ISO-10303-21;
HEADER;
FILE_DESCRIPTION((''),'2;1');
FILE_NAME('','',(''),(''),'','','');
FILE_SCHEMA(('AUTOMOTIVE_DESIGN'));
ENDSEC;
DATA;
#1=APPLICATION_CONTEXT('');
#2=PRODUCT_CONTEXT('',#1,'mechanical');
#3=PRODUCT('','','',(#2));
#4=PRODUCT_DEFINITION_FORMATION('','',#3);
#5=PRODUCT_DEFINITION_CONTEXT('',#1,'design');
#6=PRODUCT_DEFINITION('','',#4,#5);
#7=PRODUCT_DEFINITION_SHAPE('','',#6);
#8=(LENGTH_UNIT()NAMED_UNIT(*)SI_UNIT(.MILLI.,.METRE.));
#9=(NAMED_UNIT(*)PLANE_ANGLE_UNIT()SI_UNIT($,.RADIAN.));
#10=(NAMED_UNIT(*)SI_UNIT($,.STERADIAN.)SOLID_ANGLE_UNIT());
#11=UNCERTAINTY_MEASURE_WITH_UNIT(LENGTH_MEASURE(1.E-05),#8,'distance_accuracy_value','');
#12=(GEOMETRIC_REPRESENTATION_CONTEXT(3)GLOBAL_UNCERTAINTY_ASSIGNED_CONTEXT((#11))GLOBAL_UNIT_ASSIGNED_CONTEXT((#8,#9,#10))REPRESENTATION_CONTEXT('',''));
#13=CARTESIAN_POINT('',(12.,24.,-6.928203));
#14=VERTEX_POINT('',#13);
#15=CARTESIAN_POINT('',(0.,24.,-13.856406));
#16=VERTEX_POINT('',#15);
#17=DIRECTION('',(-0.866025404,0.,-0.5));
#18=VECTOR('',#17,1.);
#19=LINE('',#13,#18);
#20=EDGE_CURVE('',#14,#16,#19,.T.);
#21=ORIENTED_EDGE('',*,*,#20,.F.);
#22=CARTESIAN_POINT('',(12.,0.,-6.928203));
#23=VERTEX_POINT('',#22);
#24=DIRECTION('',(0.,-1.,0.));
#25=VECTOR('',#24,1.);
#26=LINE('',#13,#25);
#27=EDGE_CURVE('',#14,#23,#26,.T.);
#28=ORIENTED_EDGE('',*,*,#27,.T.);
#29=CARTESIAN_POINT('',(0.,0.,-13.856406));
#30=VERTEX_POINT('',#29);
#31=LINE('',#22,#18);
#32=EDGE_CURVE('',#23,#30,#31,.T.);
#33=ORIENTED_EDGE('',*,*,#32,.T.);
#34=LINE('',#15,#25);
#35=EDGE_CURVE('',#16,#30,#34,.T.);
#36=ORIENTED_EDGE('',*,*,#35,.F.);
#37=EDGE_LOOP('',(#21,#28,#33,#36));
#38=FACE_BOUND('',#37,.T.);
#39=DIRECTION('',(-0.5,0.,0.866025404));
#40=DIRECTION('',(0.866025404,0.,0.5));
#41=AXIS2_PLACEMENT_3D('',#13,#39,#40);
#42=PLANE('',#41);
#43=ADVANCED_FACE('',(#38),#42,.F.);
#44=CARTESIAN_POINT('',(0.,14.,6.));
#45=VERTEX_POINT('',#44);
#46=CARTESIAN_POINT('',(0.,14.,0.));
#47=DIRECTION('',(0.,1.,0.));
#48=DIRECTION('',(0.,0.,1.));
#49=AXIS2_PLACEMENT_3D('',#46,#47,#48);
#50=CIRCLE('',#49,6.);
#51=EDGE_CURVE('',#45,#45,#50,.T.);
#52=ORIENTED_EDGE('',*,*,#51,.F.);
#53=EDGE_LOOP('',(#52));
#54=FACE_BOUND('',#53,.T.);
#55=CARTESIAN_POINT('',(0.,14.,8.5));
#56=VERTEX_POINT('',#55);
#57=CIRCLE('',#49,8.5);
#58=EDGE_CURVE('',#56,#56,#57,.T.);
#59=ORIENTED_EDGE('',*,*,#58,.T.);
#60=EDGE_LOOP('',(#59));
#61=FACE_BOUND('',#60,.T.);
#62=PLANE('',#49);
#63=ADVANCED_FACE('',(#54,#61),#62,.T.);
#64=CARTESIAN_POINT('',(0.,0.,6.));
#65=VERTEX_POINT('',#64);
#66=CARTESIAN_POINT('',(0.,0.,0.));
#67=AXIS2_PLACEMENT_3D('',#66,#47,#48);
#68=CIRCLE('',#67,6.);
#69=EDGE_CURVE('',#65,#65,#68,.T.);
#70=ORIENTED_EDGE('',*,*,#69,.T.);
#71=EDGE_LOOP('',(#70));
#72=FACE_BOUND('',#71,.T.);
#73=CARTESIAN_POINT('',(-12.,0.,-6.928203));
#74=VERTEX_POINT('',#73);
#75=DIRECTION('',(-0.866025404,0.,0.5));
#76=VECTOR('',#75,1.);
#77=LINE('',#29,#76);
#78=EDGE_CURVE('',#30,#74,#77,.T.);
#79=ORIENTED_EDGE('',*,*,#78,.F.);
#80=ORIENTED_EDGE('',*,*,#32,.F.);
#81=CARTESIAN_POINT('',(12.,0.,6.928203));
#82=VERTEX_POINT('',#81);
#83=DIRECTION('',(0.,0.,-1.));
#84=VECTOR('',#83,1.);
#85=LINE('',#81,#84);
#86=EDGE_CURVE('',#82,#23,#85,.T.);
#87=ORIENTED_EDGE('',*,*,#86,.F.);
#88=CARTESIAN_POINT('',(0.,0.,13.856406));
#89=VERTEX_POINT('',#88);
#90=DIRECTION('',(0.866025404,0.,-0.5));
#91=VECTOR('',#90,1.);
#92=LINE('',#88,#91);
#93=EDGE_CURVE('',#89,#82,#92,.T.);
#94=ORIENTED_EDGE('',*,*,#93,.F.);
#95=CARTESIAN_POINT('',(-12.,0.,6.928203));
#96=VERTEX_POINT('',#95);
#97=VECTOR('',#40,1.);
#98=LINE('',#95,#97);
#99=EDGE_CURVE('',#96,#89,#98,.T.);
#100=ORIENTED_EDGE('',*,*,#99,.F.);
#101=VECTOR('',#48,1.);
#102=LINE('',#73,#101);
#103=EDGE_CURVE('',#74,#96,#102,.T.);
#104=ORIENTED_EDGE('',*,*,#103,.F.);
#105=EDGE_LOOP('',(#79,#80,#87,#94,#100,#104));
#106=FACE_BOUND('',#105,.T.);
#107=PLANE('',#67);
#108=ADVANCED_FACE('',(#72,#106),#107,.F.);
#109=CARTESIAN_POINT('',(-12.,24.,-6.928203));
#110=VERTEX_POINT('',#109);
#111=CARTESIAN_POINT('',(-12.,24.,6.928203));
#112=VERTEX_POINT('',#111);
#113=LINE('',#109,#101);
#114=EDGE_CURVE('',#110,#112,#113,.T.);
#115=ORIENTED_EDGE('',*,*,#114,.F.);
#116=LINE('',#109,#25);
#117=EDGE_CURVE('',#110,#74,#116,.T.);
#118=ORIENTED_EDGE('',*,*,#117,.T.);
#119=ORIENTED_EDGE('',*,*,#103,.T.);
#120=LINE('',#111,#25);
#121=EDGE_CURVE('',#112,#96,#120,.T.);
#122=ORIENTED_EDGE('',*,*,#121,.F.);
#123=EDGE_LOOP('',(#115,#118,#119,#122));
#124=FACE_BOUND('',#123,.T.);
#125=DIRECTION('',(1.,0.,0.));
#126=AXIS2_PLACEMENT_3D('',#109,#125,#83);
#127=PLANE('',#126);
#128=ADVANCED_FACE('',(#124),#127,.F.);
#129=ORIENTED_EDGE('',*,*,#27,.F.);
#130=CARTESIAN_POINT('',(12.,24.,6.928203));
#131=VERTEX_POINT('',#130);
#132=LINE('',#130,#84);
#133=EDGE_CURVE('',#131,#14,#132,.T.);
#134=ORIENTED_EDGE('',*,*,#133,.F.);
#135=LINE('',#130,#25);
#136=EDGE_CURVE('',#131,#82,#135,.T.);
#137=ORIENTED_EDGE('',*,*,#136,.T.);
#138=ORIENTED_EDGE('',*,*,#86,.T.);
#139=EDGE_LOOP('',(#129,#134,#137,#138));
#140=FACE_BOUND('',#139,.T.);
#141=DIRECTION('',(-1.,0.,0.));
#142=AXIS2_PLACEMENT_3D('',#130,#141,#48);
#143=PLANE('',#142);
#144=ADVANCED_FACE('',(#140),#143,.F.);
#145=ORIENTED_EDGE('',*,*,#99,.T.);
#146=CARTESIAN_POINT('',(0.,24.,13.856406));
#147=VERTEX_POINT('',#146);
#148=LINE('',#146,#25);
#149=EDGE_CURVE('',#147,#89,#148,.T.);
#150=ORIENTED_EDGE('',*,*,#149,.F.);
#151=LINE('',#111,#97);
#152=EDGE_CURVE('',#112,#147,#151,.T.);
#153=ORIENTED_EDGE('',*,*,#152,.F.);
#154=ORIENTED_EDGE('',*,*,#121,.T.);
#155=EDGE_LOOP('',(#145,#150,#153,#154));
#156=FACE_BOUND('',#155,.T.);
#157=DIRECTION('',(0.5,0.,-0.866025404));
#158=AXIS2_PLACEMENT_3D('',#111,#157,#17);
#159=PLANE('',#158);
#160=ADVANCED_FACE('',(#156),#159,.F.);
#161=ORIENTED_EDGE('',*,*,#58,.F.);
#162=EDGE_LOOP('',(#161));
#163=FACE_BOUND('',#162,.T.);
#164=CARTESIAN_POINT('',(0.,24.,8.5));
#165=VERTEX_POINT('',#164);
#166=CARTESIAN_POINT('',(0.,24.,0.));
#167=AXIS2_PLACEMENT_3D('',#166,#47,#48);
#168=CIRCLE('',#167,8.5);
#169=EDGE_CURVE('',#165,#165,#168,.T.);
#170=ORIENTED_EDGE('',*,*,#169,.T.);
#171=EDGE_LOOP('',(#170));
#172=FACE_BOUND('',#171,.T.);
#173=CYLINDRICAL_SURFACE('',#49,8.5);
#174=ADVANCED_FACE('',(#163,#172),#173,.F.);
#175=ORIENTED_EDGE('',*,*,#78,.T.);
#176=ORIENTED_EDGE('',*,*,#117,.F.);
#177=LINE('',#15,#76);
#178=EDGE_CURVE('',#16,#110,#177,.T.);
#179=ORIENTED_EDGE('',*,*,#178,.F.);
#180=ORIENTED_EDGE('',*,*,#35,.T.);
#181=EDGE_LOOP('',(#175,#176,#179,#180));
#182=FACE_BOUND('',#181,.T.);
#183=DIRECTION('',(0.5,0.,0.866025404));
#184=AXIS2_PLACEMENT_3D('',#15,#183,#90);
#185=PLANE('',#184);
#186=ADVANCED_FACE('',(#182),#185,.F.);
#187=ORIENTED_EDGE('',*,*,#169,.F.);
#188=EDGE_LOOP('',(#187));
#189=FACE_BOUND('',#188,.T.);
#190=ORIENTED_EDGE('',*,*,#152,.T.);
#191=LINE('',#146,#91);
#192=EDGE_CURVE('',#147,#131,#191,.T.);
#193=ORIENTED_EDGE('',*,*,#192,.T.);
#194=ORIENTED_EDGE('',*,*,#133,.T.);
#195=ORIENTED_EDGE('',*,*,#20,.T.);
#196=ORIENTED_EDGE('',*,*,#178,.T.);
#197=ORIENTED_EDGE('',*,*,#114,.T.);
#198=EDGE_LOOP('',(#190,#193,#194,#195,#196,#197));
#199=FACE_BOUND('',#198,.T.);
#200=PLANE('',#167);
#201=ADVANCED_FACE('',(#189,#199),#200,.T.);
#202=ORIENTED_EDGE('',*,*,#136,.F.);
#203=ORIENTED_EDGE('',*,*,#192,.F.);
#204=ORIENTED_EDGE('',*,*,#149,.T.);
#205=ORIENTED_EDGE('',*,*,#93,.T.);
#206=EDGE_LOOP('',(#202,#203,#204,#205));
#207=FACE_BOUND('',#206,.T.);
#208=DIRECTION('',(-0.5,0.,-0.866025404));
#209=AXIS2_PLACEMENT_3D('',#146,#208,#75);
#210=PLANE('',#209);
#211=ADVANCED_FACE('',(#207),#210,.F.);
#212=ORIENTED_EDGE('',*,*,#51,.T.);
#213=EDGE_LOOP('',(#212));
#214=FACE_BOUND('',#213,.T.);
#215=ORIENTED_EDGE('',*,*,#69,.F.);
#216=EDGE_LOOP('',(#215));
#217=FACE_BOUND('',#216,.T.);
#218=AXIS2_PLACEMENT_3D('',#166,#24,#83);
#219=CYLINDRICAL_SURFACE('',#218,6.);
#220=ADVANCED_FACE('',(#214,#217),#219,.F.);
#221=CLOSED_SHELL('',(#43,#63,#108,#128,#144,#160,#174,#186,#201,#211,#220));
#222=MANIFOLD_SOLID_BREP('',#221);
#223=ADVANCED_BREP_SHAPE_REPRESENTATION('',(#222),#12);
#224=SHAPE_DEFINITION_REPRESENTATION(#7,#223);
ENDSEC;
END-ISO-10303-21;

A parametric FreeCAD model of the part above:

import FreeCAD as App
import Part
import Sketcher
from FreeCAD import Vector
Q = App.Units.Quantity

doc = App.newDocument("Part")
body = doc.addObject("PartDesign::Body", "Body")

sketch1 = body.newObject("Sketcher::SketchObject", "Sketch")
sketch1.AttachmentSupport = (doc.getObject("XZ_Plane"), [""])
sketch1.MapMode = "FlatFace"
sketch1.addGeometry(Part.LineSegment(Vector(0, -14, 0), Vector(-12, -7, 0)), False)
sketch1.addGeometry(Part.LineSegment(Vector(-12, -7, 0), Vector(-12, 7, 0)), False)
sketch1.addGeometry(Part.LineSegment(Vector(-12, 7, 0), Vector(0, 14, 0)), False)
sketch1.addGeometry(Part.LineSegment(Vector(0, 14, 0), Vector(12, 7, 0)), False)
sketch1.addGeometry(Part.LineSegment(Vector(12, 7, 0), Vector(12, -7, 0)), False)
sketch1.addGeometry(Part.LineSegment(Vector(12, -7, 0), Vector(0, -14, 0)), False)
sketch1.addGeometry(Part.Circle(Vector(0, 0, 0), Vector(0, 0, 1), 6), False)
sketch1.addConstraint(Sketcher.Constraint("Coincident", 0, 2, 1, 1))
sketch1.addConstraint(Sketcher.Constraint("Coincident", 1, 2, 2, 1))
sketch1.addConstraint(Sketcher.Constraint("Coincident", 2, 2, 3, 1))
sketch1.addConstraint(Sketcher.Constraint("Coincident", 3, 2, 4, 1))
sketch1.addConstraint(Sketcher.Constraint("Coincident", 4, 2, 5, 1))
sketch1.addConstraint(Sketcher.Constraint("Coincident", 5, 2, 0, 1))
sketch1.addConstraint(Sketcher.Constraint("Vertical", 1))
sketch1.addConstraint(Sketcher.Constraint("Vertical", 4))
sketch1.addConstraint(Sketcher.Constraint("Coincident", 6, 3, -1, 1))
sketch1.addConstraint(Sketcher.Constraint("Symmetric", 0, 2, 3, 2, -1, 1))
sketch1.addConstraint(Sketcher.Constraint("Symmetric", 2, 2, 5, 2, -1, 1))
sketch1.addConstraint(Sketcher.Constraint("PointOnObject", 2, 2, -2))
sketch1.addConstraint(Sketcher.Constraint("Parallel", 2, 5))
sketch1.addConstraint(Sketcher.Constraint("Horizontal", 1, 2, 3, 2))
sketch1.addConstraint(Sketcher.Constraint("Diameter", 6, Q("12 mm")))
sketch1.addConstraint(Sketcher.Constraint("Angle", 0, Q("150 deg")))
sketch1.addConstraint(Sketcher.Constraint("DistanceX", 0, 2, -1, 1, Q("12 mm")))
sketch1.addConstraint(Sketcher.Constraint("DistanceY", 1, 1, 1, 2, Q("13.856406 mm")))
pad1 = body.newObject("PartDesign::Pad", "Pad")
pad1.Profile = sketch1
pad1.Length = 24
pad1.Reversed = True

sketch2 = body.newObject("Sketcher::SketchObject", "Sketch001")
sketch2.AttachmentSupport = (doc.getObject("XZ_Plane"), [""])
sketch2.MapMode = "FlatFace"
sketch2.AttachmentOffset = App.Placement(Vector(0, 0, -24), App.Rotation())
sketch2.addGeometry(Part.Circle(Vector(0, 0, 0), Vector(0, 0, 1), 8), False)
sketch2.addConstraint(Sketcher.Constraint("Coincident", 0, 3, -1, 1))
sketch2.addConstraint(Sketcher.Constraint("Diameter", 0, Q("17 mm")))
pocket1 = body.newObject("PartDesign::Pocket", "Pocket")
pocket1.Profile = sketch2
pocket1.Length = 10
pocket1.Reversed = True

doc.recompute()
